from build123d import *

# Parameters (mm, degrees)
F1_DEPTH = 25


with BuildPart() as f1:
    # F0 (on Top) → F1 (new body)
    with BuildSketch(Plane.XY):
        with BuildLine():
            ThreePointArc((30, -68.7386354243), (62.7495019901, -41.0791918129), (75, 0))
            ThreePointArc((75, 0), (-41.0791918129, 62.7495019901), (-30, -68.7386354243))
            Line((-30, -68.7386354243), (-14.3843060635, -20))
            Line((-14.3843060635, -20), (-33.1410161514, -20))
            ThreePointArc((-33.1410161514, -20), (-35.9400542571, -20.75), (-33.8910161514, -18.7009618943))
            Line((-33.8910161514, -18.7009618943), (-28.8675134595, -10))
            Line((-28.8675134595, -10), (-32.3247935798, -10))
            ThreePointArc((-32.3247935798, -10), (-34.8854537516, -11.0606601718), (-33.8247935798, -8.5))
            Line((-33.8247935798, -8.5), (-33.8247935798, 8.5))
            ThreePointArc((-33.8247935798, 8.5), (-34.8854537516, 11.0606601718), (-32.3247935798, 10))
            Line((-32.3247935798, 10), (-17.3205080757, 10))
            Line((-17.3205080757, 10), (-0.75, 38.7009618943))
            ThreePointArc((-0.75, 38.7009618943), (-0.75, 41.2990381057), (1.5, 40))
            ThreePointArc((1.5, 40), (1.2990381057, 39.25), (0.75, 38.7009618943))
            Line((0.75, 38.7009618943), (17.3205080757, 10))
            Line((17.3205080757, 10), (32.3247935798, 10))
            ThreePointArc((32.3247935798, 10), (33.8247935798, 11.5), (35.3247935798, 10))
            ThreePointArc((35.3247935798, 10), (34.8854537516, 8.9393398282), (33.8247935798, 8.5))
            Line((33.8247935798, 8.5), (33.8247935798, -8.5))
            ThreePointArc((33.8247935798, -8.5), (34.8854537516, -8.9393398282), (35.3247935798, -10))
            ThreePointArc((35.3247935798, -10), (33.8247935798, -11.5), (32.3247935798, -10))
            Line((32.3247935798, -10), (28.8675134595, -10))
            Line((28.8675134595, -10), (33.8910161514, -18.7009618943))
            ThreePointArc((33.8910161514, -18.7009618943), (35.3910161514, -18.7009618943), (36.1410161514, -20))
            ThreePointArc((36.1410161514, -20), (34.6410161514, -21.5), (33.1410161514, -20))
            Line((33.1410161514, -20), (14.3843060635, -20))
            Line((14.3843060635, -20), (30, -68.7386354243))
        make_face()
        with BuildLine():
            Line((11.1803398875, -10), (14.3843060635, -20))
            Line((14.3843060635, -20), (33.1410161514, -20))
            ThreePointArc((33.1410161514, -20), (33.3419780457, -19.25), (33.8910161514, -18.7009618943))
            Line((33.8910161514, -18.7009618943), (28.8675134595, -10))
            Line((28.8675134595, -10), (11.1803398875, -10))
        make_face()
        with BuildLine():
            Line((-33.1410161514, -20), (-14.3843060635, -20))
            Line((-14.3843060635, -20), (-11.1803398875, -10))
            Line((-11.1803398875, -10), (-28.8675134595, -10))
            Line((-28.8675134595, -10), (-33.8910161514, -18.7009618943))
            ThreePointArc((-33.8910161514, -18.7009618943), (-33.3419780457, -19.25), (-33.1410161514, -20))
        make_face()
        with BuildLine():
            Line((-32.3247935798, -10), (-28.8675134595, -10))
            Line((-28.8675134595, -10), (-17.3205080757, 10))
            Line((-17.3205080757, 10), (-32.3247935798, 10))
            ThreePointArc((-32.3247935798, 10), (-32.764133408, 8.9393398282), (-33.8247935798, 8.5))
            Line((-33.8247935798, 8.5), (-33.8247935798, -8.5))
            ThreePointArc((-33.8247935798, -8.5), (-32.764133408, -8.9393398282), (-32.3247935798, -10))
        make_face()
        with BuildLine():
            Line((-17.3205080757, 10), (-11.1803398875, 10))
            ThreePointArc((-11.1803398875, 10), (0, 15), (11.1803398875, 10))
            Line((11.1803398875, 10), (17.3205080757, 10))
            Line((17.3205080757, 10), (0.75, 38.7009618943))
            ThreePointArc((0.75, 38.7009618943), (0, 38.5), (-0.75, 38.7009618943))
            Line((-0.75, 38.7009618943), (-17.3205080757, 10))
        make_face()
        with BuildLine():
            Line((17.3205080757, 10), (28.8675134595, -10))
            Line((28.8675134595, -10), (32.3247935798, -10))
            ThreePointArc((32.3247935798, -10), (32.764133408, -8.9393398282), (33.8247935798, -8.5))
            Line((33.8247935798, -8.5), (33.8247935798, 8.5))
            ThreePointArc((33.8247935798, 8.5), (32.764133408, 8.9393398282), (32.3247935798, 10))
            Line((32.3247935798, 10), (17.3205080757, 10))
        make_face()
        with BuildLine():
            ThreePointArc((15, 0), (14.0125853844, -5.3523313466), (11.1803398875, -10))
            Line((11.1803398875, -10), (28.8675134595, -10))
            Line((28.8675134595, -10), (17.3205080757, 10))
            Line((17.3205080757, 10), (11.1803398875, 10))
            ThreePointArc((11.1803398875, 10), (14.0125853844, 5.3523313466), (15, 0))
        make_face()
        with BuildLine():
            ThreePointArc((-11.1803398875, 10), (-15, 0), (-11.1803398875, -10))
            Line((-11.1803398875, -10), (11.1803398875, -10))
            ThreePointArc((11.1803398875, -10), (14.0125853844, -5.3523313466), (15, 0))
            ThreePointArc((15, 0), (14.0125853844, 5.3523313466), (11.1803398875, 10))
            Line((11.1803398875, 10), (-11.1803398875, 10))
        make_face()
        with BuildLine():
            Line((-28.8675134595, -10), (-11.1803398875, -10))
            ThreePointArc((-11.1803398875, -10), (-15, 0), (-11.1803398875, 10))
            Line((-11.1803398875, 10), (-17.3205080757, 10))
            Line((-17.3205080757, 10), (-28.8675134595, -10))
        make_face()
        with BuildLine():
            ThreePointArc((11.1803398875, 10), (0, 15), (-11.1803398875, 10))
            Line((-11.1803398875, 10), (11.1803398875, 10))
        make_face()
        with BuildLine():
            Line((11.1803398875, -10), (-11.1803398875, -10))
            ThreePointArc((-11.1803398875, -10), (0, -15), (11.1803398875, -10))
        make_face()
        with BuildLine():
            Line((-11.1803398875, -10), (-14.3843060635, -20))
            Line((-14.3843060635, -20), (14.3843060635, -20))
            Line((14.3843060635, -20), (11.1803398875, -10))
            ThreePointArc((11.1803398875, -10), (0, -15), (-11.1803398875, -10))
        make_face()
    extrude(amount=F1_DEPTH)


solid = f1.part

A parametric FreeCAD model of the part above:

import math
import FreeCAD as App
import Part
import Sketcher
from FreeCAD import Vector
Q = App.Units.Quantity

doc = App.newDocument("Part")
body = doc.addObject("PartDesign::Body", "Body")

# Sketch on XY plane
sketch1 = body.newObject("Sketcher::SketchObject", "Sketch")
sketch1.AttachmentSupport = (doc.getObject("XY_Plane"), [""])
sketch1.MapMode = "FlatFace"
sketch1.addGeometry([
    Part.LineSegment(Vector(14.384306, -20, 0), Vector(30, -68.738635, 0)),  # 0
    Part.ArcOfCircle(Part.Circle(Vector(0, 0, 0), Vector(0, 0, 1), 75), math.radians(-66.421822), math.radians(0)),  # 1
    Part.ArcOfCircle(Part.Circle(Vector(0, 0, 0), Vector(0, 0, 1), 75), math.radians(0), math.radians(246.421822)),  # 2
    Part.LineSegment(Vector(-30, -68.738635, 0), Vector(-14.384306, -20, 0)),  # 3
    Part.LineSegment(Vector(-14.384306, -20, 0), Vector(14.384306, -20, 0)),  # 4
    Part.ArcOfCircle(Part.Circle(Vector(-34.641016, -20, 0), Vector(0, 0, 1), 1.5), math.radians(60), math.radians(360)),  # 5
    Part.ArcOfCircle(Part.Circle(Vector(-34.641016, -20, 0), Vector(0, 0, 1), 1.5), math.radians(0), math.radians(60)),  # 6
    Part.ArcOfCircle(Part.Circle(Vector(-33.824794, -10, 0), Vector(0, 0, 1), 1.5), math.radians(90), math.radians(360)),  # 7
    Part.ArcOfCircle(Part.Circle(Vector(-33.824794, -10, 0), Vector(0, 0, 1), 1.5), math.radians(0), math.radians(90)),  # 8
    Part.ArcOfCircle(Part.Circle(Vector(34.641016, -20, 0), Vector(0, 0, 1), 1.5), math.radians(0), math.radians(120)),  # 9
    Part.ArcOfCircle(Part.Circle(Vector(34.641016, -20, 0), Vector(0, 0, 1), 1.5), math.radians(180), math.radians(360)),  # 10
    Part.ArcOfCircle(Part.Circle(Vector(34.641016, -20, 0), Vector(0, 0, 1), 1.5), math.radians(120), math.radians(180)),  # 11
    Part.ArcOfCircle(Part.Circle(Vector(33.824794, -10, 0), Vector(0, 0, 1), 1.5), math.radians(0), math.radians(90)),  # 12
    Part.ArcOfCircle(Part.Circle(Vector(33.824794, -10, 0), Vector(0, 0, 1), 1.5), math.radians(180), math.radians(360)),  # 13
    Part.ArcOfCircle(Part.Circle(Vector(33.824794, -10, 0), Vector(0, 0, 1), 1.5), math.radians(90), math.radians(180)),  # 14
    Part.ArcOfCircle(Part.Circle(Vector(33.824794, 10, 0), Vector(0, 0, 1), 1.5), math.radians(0), math.radians(180)),  # 15
    Part.ArcOfCircle(Part.Circle(Vector(33.824794, 10, 0), Vector(0, 0, 1), 1.5), math.radians(-90), math.radians(0)),  # 16
    Part.ArcOfCircle(Part.Circle(Vector(33.824794, 10, 0), Vector(0, 0, 1), 1.5), math.radians(180), math.radians(270)),  # 17
    Part.ArcOfCircle(Part.Circle(Vector(-33.824794, 10, 0), Vector(0, 0, 1), 1.5), math.radians(0), math.radians(270)),  # 18
    Part.ArcOfCircle(Part.Circle(Vector(-33.824794, 10, 0), Vector(0, 0, 1), 1.5), math.radians(-90), math.radians(0)),  # 19
    Part.ArcOfCircle(Part.Circle(Vector(0, 40, 0), Vector(0, 0, 1), 1.5), math.radians(0), math.radians(240)),  # 20
    Part.ArcOfCircle(Part.Circle(Vector(0, 40, 0), Vector(0, 0, 1), 1.5), math.radians(-60), math.radians(0)),  # 21
    Part.ArcOfCircle(Part.Circle(Vector(0, 40, 0), Vector(0, 0, 1), 1.5), math.radians(-120), math.radians(-60)),  # 22
], False)
sketch1.addConstraint([
    Sketcher.Constraint("Coincident", 0, 2, 1, 1),
    Sketcher.Constraint("Tangent", 1, 2, 2, 1),
    Sketcher.Constraint("Coincident", 2, 2, 3, 1),
    Sketcher.Constraint("Coincident", 3, 2, 4, 1),
    Sketcher.Constraint("Coincident", 4, 2, 0, 1),
    Sketcher.Constraint("Tangent", 5, 1, 6, 2),
    Sketcher.Constraint("Coincident", 6, 1, 5, 2),
    Sketcher.Constraint("Tangent", 7, 1, 8, 2),
    Sketcher.Constraint("Coincident", 8, 1, 7, 2),
    Sketcher.Constraint("Tangent", 9, 1, 10, 2),
    Sketcher.Constraint("Tangent", 10, 1, 11, 2),
    Sketcher.Constraint("Tangent", 11, 1, 9, 2),
    Sketcher.Constraint("Tangent", 12, 1, 13, 2),
    Sketcher.Constraint("Tangent", 13, 1, 14, 2),
    Sketcher.Constraint("Tangent", 14, 1, 12, 2),
    Sketcher.Constraint("Tangent", 15, 1, 16, 2),
    Sketcher.Constraint("Tangent", 16, 1, 17, 2),
    Sketcher.Constraint("Tangent", 17, 1, 15, 2),
    Sketcher.Constraint("Tangent", 18, 1, 19, 2),
    Sketcher.Constraint("Coincident", 19, 1, 18, 2),
    Sketcher.Constraint("Tangent", 20, 1, 21, 2),
    Sketcher.Constraint("Tangent", 21, 1, 22, 2),
    Sketcher.Constraint("Tangent", 22, 1, 20, 2),
    Sketcher.Constraint("Horizontal", 4),
    Sketcher.Constraint("Coincident", 1, 3, -1, 1),
    Sketcher.Constraint("Equal", 1, 2),
    Sketcher.Constraint("Equal", 6, 7),
    Sketcher.Constraint("Equal", 8, 9),
    Sketcher.Constraint("Equal", 11, 12),
    Sketcher.Constraint("Equal", 14, 15),
    Sketcher.Constraint("Equal", 17, 18),
    Sketcher.Constraint("Equal", 19, 20),
    Sketcher.Constraint("Symmetric", 7, 3, 15, 3, -1, 1),
    Sketcher.Constraint("Symmetric", 12, 3, 18, 3, -1, 1),
    Sketcher.Constraint("Symmetric", 5, 3, 9, 3, -2),
    Sketcher.Constraint("Symmetric", 7, 3, 12, 3, -2),
    Sketcher.Constraint("Symmetric", 21, 1, 22, 1, -2),
    Sketcher.Constraint("PointOnObject", 1, 2, -1),
    Sketcher.Constraint("Horizontal", 0, 2, 2, 2),
    Sketcher.Constraint("Horizontal", 11, 3, 3, 2),
    Sketcher.Constraint("Horizontal", 4, 2, 6, 1),
    Sketcher.Constraint("Horizontal", 14, 3, 8, 1),
    Sketcher.Constraint("Horizontal", 6, 1, 9, 1),
    Sketcher.Constraint("Horizontal", 9, 1, 10, 1),
    Sketcher.Constraint("Horizontal", 5, 1, 11, 1),
    Sketcher.Constraint("Horizontal", 8, 1, 12, 1),
    Sketcher.Constraint("Horizontal", 12, 1, 13, 1),
    Sketcher.Constraint("Horizontal", 19, 3, 15, 1),
    Sketcher.Constraint("Horizontal", 15, 1, 17, 1),
    Sketcher.Constraint("Horizontal", 17, 1, 18, 1),
    Sketcher.Constraint("Horizontal", 22, 3, 20, 1),
    Sketcher.Constraint("Vertical", 19, 3, 7, 1),
    Sketcher.Constraint("Vertical", 17, 3, 14, 1),
    Sketcher.Constraint("Vertical", 14, 1, 16, 1),
    Sketcher.Constraint("Vertical", 7, 1, 19, 1),
    Sketcher.Constraint("Equal", 0, 3),
    Sketcher.Constraint("Radius", 1, Q("75 mm")),
    Sketcher.Constraint("Radius", 5, Q("1.5 mm")),
    Sketcher.Constraint("DistanceY", 5, 3, -1, 1, Q("20 mm")),
    Sketcher.Constraint("DistanceY", 7, 3, -1, 1, Q("10 mm")),
    Sketcher.Constraint("DistanceY", -1, 1, 20, 3, Q("40 mm")),
    Sketcher.Constraint("DistanceX", -1, 1, 0, 2, Q("30 mm")),
    Sketcher.Constraint("DistanceX", 22, 1, 21, 1, Q("1.5 mm")),
    Sketcher.Constraint("DistanceX", 5, 3, 5, 1, Q("0.75 mm")),
    Sketcher.Constraint("Distance", 0, Q("51.179141 mm")),
    Sketcher.Constraint("DistanceX", 7, 3, 9, 3, Q("68.46581 mm")),
    Sketcher.Constraint("DistanceX", 5, 3, 3, 2, Q("20.25671 mm")),
])
pad1 = body.newObject("PartDesign::Pad", "Pad")
pad1.Profile = sketch1
pad1.Length = 25

doc.recompute()
